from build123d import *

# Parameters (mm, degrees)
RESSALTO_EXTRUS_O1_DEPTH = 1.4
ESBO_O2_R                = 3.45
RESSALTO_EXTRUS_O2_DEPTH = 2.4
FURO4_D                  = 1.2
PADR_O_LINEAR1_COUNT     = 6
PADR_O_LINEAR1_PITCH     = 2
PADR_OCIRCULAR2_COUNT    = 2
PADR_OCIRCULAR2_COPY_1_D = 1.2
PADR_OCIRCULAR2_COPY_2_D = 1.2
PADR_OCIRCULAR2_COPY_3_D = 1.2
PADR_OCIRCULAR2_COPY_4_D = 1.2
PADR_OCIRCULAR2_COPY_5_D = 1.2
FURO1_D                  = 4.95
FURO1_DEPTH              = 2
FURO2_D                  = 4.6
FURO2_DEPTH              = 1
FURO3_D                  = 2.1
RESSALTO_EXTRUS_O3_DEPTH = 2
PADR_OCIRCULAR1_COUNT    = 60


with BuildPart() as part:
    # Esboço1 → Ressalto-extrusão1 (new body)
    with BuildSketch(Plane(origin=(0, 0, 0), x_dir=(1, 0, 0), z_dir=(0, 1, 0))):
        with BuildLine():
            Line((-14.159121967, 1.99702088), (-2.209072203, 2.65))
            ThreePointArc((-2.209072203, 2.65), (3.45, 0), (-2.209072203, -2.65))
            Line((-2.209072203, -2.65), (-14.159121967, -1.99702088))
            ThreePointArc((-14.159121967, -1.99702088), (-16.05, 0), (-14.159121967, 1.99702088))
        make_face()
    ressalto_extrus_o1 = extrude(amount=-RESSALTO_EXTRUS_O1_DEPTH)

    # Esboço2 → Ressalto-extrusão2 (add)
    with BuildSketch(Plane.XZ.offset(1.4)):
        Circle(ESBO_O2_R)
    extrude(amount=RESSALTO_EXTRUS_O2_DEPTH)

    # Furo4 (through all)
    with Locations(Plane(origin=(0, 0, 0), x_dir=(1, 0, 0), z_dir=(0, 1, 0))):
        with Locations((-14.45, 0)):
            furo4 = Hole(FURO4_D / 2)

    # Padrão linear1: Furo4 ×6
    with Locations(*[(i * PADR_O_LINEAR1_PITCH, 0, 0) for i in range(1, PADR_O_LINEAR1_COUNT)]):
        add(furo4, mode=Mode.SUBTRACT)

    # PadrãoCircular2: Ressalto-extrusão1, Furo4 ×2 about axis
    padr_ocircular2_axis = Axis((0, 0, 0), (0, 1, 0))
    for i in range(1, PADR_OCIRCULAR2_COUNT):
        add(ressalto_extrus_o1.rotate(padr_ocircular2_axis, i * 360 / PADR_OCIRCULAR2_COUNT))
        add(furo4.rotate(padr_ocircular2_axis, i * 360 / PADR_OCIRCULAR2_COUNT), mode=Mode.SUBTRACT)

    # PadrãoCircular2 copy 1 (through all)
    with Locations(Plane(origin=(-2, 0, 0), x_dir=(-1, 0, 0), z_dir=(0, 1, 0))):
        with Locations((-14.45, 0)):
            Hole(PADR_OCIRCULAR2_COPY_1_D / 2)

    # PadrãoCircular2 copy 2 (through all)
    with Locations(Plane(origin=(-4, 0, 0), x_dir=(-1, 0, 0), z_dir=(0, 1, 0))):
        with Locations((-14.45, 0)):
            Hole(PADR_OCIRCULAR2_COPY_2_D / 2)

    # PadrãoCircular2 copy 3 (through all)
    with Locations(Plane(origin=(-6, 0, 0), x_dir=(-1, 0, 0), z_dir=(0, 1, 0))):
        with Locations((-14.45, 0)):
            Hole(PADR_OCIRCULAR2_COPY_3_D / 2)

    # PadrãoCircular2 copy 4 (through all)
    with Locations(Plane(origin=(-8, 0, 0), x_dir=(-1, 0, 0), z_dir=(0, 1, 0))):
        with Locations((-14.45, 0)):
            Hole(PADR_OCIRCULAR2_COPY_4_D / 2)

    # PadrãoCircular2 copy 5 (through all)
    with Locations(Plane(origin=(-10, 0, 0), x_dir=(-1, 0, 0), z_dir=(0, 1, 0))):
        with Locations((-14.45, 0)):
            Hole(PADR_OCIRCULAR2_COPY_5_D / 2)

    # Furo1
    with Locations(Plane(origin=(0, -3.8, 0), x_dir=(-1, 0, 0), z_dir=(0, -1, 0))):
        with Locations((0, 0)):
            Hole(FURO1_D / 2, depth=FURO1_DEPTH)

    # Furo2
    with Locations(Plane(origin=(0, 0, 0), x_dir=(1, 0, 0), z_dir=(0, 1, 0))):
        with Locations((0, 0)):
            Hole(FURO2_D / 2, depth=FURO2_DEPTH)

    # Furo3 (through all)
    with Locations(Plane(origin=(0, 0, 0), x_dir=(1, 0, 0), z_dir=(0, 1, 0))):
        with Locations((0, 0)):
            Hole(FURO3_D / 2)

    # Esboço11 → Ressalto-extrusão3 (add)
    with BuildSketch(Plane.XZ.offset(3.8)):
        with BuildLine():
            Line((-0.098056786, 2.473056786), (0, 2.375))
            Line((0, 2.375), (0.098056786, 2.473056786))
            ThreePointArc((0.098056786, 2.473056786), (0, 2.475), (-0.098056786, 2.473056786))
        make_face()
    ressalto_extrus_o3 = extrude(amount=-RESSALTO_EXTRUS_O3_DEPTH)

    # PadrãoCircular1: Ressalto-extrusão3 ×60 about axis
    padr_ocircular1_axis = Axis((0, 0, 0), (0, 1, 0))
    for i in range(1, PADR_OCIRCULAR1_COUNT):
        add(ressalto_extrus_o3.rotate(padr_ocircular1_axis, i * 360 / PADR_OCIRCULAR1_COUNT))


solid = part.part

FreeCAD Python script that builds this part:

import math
import FreeCAD as App
import Part
import Sketcher

V = App.Vector

doc = App.newDocument("Part")
body = doc.addObject("PartDesign::Body", "Body")

sketch1 = body.newObject("Sketcher::SketchObject", "Sketch")
sketch1.AttachmentSupport = (doc.getObject("XZ_Plane"), [""])
sketch1.MapMode = "FlatFace"
sketch1.addGeometry(Part.LineSegment(V(-2.209072, -2.65, 0), V(-14.159122, -1.997021, 0)), False)
sketch1.addGeometry(Part.ArcOfCircle(Part.Circle(V(-14.05, 0, 0), V(0, 0, 1), 2), math.radians(93.127667), math.radians(266.872333)), False)
sketch1.addGeometry(Part.LineSegment(V(-14.159122, 1.997021, 0), V(-2.209072, 2.65, 0)), False)
sketch1.addGeometry(Part.ArcOfCircle(Part.Circle(V(0, 0, 0), V(0, 0, 1), 3.45), math.radians(-129.814998), math.radians(129.814998)), False)
sketch1.addConstraint(Sketcher.Constraint("Tangent", 0, 2, 1, 2))
sketch1.addConstraint(Sketcher.Constraint("Tangent", 1, 1, 2, 1))
sketch1.addConstraint(Sketcher.Constraint("Coincident", 2, 2, 3, 2))
sketch1.addConstraint(Sketcher.Constraint("Coincident", 3, 1, 0, 1))
sketch1.addConstraint(Sketcher.Constraint("Coincident", 3, 3, -1, 1))
sketch1.addConstraint(Sketcher.Constraint("Symmetric", 0, 2, 1, 1, -1))
sketch1.addConstraint(Sketcher.Constraint("Radius", 1, 2.0))
sketch1.addConstraint(Sketcher.Constraint("Radius", 3, 3.45))
sketch1.addConstraint(Sketcher.Constraint("DistanceY", 3, 1, 2, 2, 5.3))
sketch1.addConstraint(Sketcher.Constraint("DistanceX", 1, 3, -1, 1, 14.05))
pad1 = body.newObject("PartDesign::Pad", "Pad")
pad1.Profile = sketch1
pad1.Length = 1.4

sketch2 = body.newObject("Sketcher::SketchObject", "Sketch001")
sketch2.AttachmentSupport = (doc.getObject("XZ_Plane"), [""])
sketch2.MapMode = "FlatFace"
sketch2.AttachmentOffset = App.Placement(V(0, 0, 1.4), App.Rotation())
sketch2.addGeometry(Part.Circle(V(0, 0, 0), V(0, 0, 1), 3.45), False)
sketch2.addConstraint(Sketcher.Constraint("Coincident", 0, 3, -1, 1))
sketch2.addConstraint(Sketcher.Constraint("Diameter", 0, 6.9))
pad2 = body.newObject("PartDesign::Pad", "Pad001")
pad2.Profile = sketch2
pad2.Length = 2.4

sketch3 = body.newObject("Sketcher::SketchObject", "Sketch002")
sketch3.AttachmentSupport = (doc.getObject("XZ_Plane"), [""])
sketch3.MapMode = "FlatFace"
sketch3.addGeometry(Part.Circle(V(-14.45, 0, 0), V(0, 0, 1), 0.6), False)
sketch3.addConstraint(Sketcher.Constraint("PointOnObject", 0, 3, -1))
sketch3.addConstraint(Sketcher.Constraint("Diameter", 0, 1.2))
sketch3.addConstraint(Sketcher.Constraint("DistanceX", 0, 3, -1, 1, 14.45))
doc.recompute()
hole = body.newObject("PartDesign::Hole", "Hole")
hole.Profile = sketch3
hole.ThreadType = "None"
hole.Diameter = 1.2
hole.DepthType = "ThroughAll"
hole.Reversed = True
doc.recompute()

linearpattern = body.newObject("PartDesign::LinearPattern", "LinearPattern")
linearpattern.Originals = [hole]
linearpattern.Direction = (doc.getObject("X_Axis"), [""])
linearpattern.Mode = "offset"
linearpattern.Offset = 2
linearpattern.Occurrences = 6
body.Tip = linearpattern
doc.recompute()

polarpattern = body.newObject("PartDesign::PolarPattern", "PolarPattern")
polarpattern.Originals = [pad1, hole]
polarpattern.Axis = (doc.getObject("Y_Axis"), [""])
polarpattern.Angle = 360
polarpattern.Occurrences = 2
body.Tip = polarpattern

sketch4 = body.newObject("Sketcher::SketchObject", "Sketch003")
sketch4.AttachmentSupport = (doc.getObject("XZ_Plane"), [""])
sketch4.MapMode = "FlatFace"
sketch4.addGeometry(Part.Circle(V(12.45, 0, 0), V(0, 0, 1), 0.6), False)
sketch4.addConstraint(Sketcher.Constraint("PointOnObject", 0, 3, -1))
sketch4.addConstraint(Sketcher.Constraint("Diameter", 0, 1.2))
sketch4.addConstraint(Sketcher.Constraint("DistanceX", -1, 1, 0, 3, 12.45))
doc.recompute()
hole2 = body.newObject("PartDesign::Hole", "Hole001")
hole2.Profile = sketch4
hole2.ThreadType = "None"
hole2.Diameter = 1.2
hole2.DepthType = "ThroughAll"
hole2.Reversed = True

sketch5 = body.newObject("Sketcher::SketchObject", "Sketch004")
sketch5.AttachmentSupport = (doc.getObject("XZ_Plane"), [""])
sketch5.MapMode = "FlatFace"
sketch5.addGeometry(Part.Circle(V(10.45, 0, 0), V(0, 0, 1), 0.6), False)
sketch5.addConstraint(Sketcher.Constraint("PointOnObject", 0, 3, -1))
sketch5.addConstraint(Sketcher.Constraint("Diameter", 0, 1.2))
sketch5.addConstraint(Sketcher.Constraint("DistanceX", -1, 1, 0, 3, 10.45))
doc.recompute()
hole3 = body.newObject("PartDesign::Hole", "Hole002")
hole3.Profile = sketch5
hole3.ThreadType = "None"
hole3.Diameter = 1.2
hole3.DepthType = "ThroughAll"
hole3.Reversed = True

sketch6 = body.newObject("Sketcher::SketchObject", "Sketch005")
sketch6.AttachmentSupport = (doc.getObject("XZ_Plane"), [""])
sketch6.MapMode = "FlatFace"
sketch6.addGeometry(Part.Circle(V(8.45, 0, 0), V(0, 0, 1), 0.6), False)
sketch6.addConstraint(Sketcher.Constraint("PointOnObject", 0, 3, -1))
sketch6.addConstraint(Sketcher.Constraint("Diameter", 0, 1.2))
sketch6.addConstraint(Sketcher.Constraint("DistanceX", -1, 1, 0, 3, 8.45))
doc.recompute()
hole4 = body.newObject("PartDesign::Hole", "Hole003")
hole4.Profile = sketch6
hole4.ThreadType = "None"
hole4.Diameter = 1.2
hole4.DepthType = "ThroughAll"
hole4.Reversed = True

sketch7 = body.newObject("Sketcher::SketchObject", "Sketch006")
sketch7.AttachmentSupport = (doc.getObject("XZ_Plane"), [""])
sketch7.MapMode = "FlatFace"
sketch7.addGeometry(Part.Circle(V(6.45, 0, 0), V(0, 0, 1), 0.6), False)
sketch7.addConstraint(Sketcher.Constraint("PointOnObject", 0, 3, -1))
sketch7.addConstraint(Sketcher.Constraint("Diameter", 0, 1.2))
sketch7.addConstraint(Sketcher.Constraint("DistanceX", -1, 1, 0, 3, 6.45))
doc.recompute()
hole5 = body.newObject("PartDesign::Hole", "Hole004")
hole5.Profile = sketch7
hole5.ThreadType = "None"
hole5.Diameter = 1.2
hole5.DepthType = "ThroughAll"
hole5.Reversed = True

sketch8 = body.newObject("Sketcher::SketchObject", "Sketch007")
sketch8.AttachmentSupport = (doc.getObject("XZ_Plane"), [""])
sketch8.MapMode = "FlatFace"
sketch8.addGeometry(Part.Circle(V(4.45, 0, 0), V(0, 0, 1), 0.6), False)
sketch8.addConstraint(Sketcher.Constraint("PointOnObject", 0, 3, -1))
sketch8.addConstraint(Sketcher.Constraint("Diameter", 0, 1.2))
sketch8.addConstraint(Sketcher.Constraint("DistanceX", -1, 1, 0, 3, 4.45))
doc.recompute()
hole6 = body.newObject("PartDesign::Hole", "Hole005")
hole6.Profile = sketch8
hole6.ThreadType = "None"
hole6.Diameter = 1.2
hole6.DepthType = "ThroughAll"
hole6.Reversed = True

sketch9 = body.newObject("Sketcher::SketchObject", "Sketch008")
sketch9.AttachmentSupport = (doc.getObject("XZ_Plane"), [""])
sketch9.MapMode = "FlatFace"
sketch9.AttachmentOffset = App.Placement(V(0, 0, 3.8), App.Rotation())
sketch9.addGeometry(Part.Circle(V(0, 0, 0), V(0, 0, 1), 2.475), False)
sketch9.addConstraint(Sketcher.Constraint("Coincident", 0, 3, -1, 1))
sketch9.addConstraint(Sketcher.Constraint("Diameter", 0, 4.95))
doc.recompute()
hole7 = body.newObject("PartDesign::Hole", "Hole006")
hole7.Profile = sketch9
hole7.ThreadType = "None"
hole7.Diameter = 4.95
hole7.DepthType = "Dimension"
hole7.Depth = 2
hole7.DrillPoint = "Flat"

sketch10 = body.newObject("Sketcher::SketchObject", "Sketch009")
sketch10.AttachmentSupport = (doc.getObject("XZ_Plane"), [""])
sketch10.MapMode = "FlatFace"
sketch10.addGeometry(Part.Circle(V(0, 0, 0), V(0, 0, 1), 2.3), False)
sketch10.addConstraint(Sketcher.Constraint("Coincident", 0, 3, -1, 1))
sketch10.addConstraint(Sketcher.Constraint("Diameter", 0, 4.6))
doc.recompute()
hole8 = body.newObject("PartDesign::Hole", "Hole007")
hole8.Profile = sketch10
hole8.ThreadType = "None"
hole8.Diameter = 4.6
hole8.DepthType = "Dimension"
hole8.Depth = 1
hole8.DrillPoint = "Flat"
hole8.Reversed = True

sketch11 = body.newObject("Sketcher::SketchObject", "Sketch010")
sketch11.AttachmentSupport = (doc.getObject("XZ_Plane"), [""])
sketch11.MapMode = "FlatFace"
sketch11.addGeometry(Part.Circle(V(0, 0, 0), V(0, 0, 1), 1.05), False)
sketch11.addConstraint(Sketcher.Constraint("Coincident", 0, 3, -1, 1))
sketch11.addConstraint(Sketcher.Constraint("Diameter", 0, 2.1))
doc.recompute()
hole9 = body.newObject("PartDesign::Hole", "Hole008")
hole9.Profile = sketch11
hole9.ThreadType = "None"
hole9.Diameter = 2.1
hole9.DepthType = "ThroughAll"
hole9.Reversed = True

sketch12 = body.newObject("Sketcher::SketchObject", "Sketch011")
sketch12.AttachmentSupport = (doc.getObject("XZ_Plane"), [""])
sketch12.MapMode = "FlatFace"
sketch12.AttachmentOffset = App.Placement(V(0, 0, 3.8), App.Rotation())
sketch12.addGeometry(Part.LineSegment(V(-0.098057, 2.473057, 0), V(0, 2.375, 0)), False)
sketch12.addGeometry(Part.LineSegment(V(0, 2.375, 0), V(0.098057, 2.473057, 0)), False)
sketch12.addGeometry(Part.ArcOfCircle(Part.Circle(V(0, 0, 0), V(0, 0, 1), 2.475), math.radians(87.72941), math.radians(92.27059)), False)
sketch12.addConstraint(Sketcher.Constraint("Coincident", 0, 2, 1, 1))
sketch12.addConstraint(Sketcher.Constraint("Coincident", 1, 2, 2, 1))
sketch12.addConstraint(Sketcher.Constraint("Coincident", 2, 2, 0, 1))
sketch12.addConstraint(Sketcher.Constraint("Coincident", 2, 3, -1, 1))
sketch12.addConstraint(Sketcher.Constraint("PointOnObject", 0, 2, -2))
sketch12.addConstraint(Sketcher.Constraint("Perpendicular", 0, 1))
sketch12.addConstraint(Sketcher.Constraint("Horizontal", 1, 2, 2, 2))
sketch12.addConstraint(Sketcher.Constraint("Radius", 2, 2.475))
sketch12.addConstraint(Sketcher.Constraint("DistanceY", -1, 1, 0, 2, 2.375))
pad3 = body.newObject("PartDesign::Pad", "Pad002")
pad3.Profile = sketch12
pad3.Length = 2
pad3.Reversed = True
doc.recompute()

polarpattern2 = body.newObject("PartDesign::PolarPattern", "PolarPattern001")
polarpattern2.Originals = [pad3]
polarpattern2.Axis = (doc.getObject("Y_Axis"), [""])
polarpattern2.Angle = 360
polarpattern2.Occurrences = 60
body.Tip = polarpattern2

doc.recompute()
